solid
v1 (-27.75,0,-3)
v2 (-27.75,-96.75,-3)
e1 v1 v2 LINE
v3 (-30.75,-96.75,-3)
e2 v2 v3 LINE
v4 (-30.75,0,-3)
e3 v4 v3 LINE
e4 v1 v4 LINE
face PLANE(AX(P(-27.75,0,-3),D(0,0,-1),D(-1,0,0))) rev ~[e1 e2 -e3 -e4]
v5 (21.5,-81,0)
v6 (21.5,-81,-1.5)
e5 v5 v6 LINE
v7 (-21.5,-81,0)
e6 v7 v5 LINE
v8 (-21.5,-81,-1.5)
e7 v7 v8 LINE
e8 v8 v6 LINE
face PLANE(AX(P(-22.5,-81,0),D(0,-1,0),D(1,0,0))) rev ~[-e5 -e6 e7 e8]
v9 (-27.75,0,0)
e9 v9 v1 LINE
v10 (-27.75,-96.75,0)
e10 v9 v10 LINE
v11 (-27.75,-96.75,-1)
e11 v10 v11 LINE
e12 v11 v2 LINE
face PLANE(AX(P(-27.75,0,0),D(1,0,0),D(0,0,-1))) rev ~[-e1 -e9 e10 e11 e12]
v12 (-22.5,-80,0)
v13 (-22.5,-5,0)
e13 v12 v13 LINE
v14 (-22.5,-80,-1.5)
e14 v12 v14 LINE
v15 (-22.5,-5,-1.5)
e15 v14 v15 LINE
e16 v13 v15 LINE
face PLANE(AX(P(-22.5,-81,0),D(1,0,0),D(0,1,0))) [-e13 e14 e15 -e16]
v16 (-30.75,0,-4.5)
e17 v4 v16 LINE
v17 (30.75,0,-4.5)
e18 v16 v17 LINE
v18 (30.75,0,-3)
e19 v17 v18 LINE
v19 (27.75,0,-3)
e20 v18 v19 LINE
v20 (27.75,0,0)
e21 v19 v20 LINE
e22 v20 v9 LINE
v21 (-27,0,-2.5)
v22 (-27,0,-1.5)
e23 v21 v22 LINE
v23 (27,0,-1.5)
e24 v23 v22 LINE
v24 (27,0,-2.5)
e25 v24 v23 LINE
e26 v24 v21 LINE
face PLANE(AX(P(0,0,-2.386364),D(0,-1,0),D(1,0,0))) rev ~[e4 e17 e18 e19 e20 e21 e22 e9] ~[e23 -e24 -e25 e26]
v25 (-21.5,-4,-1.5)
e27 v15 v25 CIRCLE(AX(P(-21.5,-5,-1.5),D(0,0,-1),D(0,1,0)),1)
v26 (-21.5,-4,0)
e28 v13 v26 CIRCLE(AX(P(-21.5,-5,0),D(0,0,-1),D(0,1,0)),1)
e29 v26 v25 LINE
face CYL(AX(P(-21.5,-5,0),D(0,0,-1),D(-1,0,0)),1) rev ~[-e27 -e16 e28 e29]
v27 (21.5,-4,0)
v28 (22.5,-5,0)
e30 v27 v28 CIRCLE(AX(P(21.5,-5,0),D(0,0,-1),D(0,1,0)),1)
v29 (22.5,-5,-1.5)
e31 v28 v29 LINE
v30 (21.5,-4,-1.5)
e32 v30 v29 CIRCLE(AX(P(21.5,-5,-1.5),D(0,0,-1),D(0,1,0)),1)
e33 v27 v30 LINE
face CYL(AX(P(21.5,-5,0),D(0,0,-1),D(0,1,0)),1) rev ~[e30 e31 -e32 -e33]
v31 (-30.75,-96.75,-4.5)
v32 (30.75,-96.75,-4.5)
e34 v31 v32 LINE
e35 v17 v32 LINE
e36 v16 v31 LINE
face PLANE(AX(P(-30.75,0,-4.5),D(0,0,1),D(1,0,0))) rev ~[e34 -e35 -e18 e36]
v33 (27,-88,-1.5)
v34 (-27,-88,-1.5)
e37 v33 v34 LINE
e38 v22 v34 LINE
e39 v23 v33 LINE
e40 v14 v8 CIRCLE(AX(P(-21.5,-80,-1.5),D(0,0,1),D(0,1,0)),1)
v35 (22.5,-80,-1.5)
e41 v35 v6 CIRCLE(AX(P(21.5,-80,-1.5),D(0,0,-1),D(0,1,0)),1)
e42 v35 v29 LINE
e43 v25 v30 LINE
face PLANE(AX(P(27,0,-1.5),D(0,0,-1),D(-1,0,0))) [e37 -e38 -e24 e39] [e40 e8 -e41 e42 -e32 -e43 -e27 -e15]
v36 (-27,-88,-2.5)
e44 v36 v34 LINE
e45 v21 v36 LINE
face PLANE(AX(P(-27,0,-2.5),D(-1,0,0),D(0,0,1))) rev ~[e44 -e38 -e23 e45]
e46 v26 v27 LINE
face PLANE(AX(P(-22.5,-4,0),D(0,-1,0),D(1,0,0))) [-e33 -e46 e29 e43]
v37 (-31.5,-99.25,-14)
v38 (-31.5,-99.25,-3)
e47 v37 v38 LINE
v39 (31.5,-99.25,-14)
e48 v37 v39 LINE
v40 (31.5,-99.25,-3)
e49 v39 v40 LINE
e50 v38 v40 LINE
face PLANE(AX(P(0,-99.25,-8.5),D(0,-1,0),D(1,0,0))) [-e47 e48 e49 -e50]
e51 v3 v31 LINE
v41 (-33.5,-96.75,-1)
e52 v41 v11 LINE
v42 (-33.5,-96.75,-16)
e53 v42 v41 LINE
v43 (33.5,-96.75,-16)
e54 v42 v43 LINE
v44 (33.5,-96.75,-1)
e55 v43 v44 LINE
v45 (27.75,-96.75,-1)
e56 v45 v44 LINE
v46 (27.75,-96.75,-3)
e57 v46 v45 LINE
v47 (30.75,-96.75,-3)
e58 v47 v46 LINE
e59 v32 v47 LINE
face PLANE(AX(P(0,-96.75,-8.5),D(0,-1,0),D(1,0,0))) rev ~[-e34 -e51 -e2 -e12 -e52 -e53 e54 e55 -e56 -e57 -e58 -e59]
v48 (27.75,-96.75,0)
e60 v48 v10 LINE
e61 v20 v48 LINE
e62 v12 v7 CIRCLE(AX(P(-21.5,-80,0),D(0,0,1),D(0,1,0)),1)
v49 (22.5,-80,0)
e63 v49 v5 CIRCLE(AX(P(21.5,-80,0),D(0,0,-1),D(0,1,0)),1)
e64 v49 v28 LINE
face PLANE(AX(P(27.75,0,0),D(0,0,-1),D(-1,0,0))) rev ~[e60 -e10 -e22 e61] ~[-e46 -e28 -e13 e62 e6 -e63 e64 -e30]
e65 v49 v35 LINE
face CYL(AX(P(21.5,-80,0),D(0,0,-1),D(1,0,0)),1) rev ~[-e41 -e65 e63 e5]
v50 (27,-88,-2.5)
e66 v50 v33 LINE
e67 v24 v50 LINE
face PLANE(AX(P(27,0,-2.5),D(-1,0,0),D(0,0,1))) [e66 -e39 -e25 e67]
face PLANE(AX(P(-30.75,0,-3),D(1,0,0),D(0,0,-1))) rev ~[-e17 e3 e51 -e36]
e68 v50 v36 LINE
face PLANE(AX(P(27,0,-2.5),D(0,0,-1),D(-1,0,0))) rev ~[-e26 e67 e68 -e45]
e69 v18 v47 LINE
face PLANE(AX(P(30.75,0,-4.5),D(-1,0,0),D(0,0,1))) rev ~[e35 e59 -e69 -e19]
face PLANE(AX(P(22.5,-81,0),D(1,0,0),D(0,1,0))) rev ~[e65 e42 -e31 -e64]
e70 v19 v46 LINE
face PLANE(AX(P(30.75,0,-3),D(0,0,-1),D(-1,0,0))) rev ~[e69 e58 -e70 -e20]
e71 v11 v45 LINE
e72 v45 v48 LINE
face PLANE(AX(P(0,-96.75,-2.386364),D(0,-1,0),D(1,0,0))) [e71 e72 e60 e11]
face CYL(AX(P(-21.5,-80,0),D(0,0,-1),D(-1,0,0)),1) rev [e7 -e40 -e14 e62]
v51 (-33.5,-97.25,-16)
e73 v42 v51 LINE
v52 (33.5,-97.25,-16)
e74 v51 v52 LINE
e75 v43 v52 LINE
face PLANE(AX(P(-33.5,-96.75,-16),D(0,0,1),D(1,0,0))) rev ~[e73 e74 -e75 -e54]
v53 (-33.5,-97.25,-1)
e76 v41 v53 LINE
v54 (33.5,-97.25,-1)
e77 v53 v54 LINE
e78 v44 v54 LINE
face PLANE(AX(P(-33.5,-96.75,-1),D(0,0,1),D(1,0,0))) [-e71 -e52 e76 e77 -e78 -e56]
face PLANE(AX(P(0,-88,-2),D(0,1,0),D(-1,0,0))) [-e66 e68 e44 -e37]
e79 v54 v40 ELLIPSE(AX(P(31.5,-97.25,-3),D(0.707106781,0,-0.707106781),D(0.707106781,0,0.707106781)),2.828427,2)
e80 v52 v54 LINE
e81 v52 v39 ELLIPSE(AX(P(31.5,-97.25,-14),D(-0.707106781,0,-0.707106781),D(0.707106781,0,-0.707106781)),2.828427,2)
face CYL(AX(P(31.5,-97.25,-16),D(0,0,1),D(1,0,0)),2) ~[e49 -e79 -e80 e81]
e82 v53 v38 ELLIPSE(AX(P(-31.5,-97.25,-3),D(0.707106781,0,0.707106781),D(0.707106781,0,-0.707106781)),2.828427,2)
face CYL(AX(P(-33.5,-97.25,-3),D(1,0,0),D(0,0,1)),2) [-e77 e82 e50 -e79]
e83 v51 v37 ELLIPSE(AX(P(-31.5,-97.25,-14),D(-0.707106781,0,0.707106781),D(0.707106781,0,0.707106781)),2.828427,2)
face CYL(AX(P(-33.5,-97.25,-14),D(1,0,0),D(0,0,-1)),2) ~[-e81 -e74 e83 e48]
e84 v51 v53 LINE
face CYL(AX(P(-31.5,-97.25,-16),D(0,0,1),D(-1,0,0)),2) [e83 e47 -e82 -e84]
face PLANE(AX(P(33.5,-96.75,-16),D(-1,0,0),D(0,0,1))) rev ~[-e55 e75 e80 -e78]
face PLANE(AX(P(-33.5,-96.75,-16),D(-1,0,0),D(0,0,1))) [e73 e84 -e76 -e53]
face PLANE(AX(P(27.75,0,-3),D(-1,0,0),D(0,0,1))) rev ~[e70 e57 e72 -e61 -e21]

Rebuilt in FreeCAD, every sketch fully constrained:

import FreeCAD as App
import Part
import Sketcher
Q = App.Units.Quantity


def edges_at(feature, points):
    """Names of the edges that pass closest to the given points."""
    edges = feature.Shape.Edges
    near = lambda p: min(range(len(edges)), key=lambda i: edges[i].distToShape(Part.Vertex(*p))[0])
    return sorted({f"Edge{near(p) + 1}" for p in points})


def add_polygon(sketch, points):
    """Adds a closed chain of lines whose ends are joined by coincident constraints."""
    first, n = sketch.GeometryCount, len(points)
    for a, b in zip(points, points[1:] + points[:1]):
        sketch.addGeometry(Part.LineSegment(App.Vector(*a, 0), App.Vector(*b, 0)), False)
    for i in range(n):
        sketch.addConstraint(Sketcher.Constraint("Coincident", first + i, 2, first + (i + 1) % n, 1))

doc = App.newDocument("Part")
body = doc.addObject("PartDesign::Body", "Body")

sketch1 = doc.addObject("Sketcher::SketchObject", "Sketch")
body.addObject(sketch1)
sketch1.AttachmentSupport = (doc.XZ_Plane, [""])
sketch1.MapMode = "FlatFace"
add_polygon(sketch1, [(-27.8, 0), (-27.8, -3), (-30.8, -3), (-30.8, -4.5), (30.8, -4.5), (30.8, -3), (27.8, -3), (27.8, 0)])
sketch1.addConstraint([
    Sketcher.Constraint("Vertical", 0),
    Sketcher.Constraint("Horizontal", 1),
    Sketcher.Constraint("Vertical", 2),
    Sketcher.Constraint("Horizontal", 3),
    Sketcher.Constraint("Vertical", 4),
    Sketcher.Constraint("Horizontal", 5),
    Sketcher.Constraint("Vertical", 6),
    Sketcher.Constraint("Horizontal", 7),
    Sketcher.Constraint("Symmetric", 6, 2, 7, 2, -1, 1),
    Sketcher.Constraint("Symmetric", 1, 2, 4, 2, -2),
    Sketcher.Constraint("Equal", 5, 0),
    Sketcher.Constraint("DistanceX", 1, 2, 1, 1, Q("3 mm")),
    Sketcher.Constraint("DistanceX", 3, 1, 3, 2, Q("61.5 mm")),
    Sketcher.Constraint("DistanceY", 2, 2, 2, 1, Q("1.5 mm")),
])
pad1 = doc.addObject("PartDesign::Pad", "Pad")
body.addObject(pad1)
pad1.Profile = sketch1
pad1.Length = 96.75

sketch2 = doc.addObject("Sketcher::SketchObject", "Sketch001")
body.addObject(sketch2)
sketch2.AttachmentSupport = (doc.XZ_Plane, [""])
sketch2.MapMode = "FlatFace"
sketch2.AttachmentOffset = App.Placement(App.Vector(0, 0, 96.75), App.Rotation())
add_polygon(sketch2, [(-34, -1), (-34, -16), (34, -16), (34, -1)])
sketch2.addConstraint([
    Sketcher.Constraint("Vertical", 0),
    Sketcher.Constraint("Horizontal", 1),
    Sketcher.Constraint("Vertical", 2),
    Sketcher.Constraint("Horizontal", 3),
    Sketcher.Constraint("DistanceX", 1, 1, 1, 2, Q("67 mm")),
    Sketcher.Constraint("DistanceY", 0, 2, 0, 1, Q("15 mm")),
    Sketcher.Constraint("DistanceY", 0, 2, -1, 1, Q("16 mm")),
    Sketcher.Constraint("DistanceX", 0, 2, -1, 1, Q("33.5 mm")),
])
pad2 = doc.addObject("PartDesign::Pad", "Pad001")
body.addObject(pad2)
pad2.Profile = sketch2
pad2.Length = 2.5

sketch3 = doc.addObject("Sketcher::SketchObject", "Sketch002")
body.addObject(sketch3)
sketch3.AttachmentSupport = (doc.XZ_Plane, [""])
sketch3.MapMode = "FlatFace"
add_polygon(sketch3, [(27, -1.5), (27, -2.5), (-27, -2.5), (-27, -1.5)])
sketch3.addConstraint([
    Sketcher.Constraint("Vertical", 0),
    Sketcher.Constraint("Horizontal", 1),
    Sketcher.Constraint("Vertical", 2),
    Sketcher.Constraint("Horizontal", 3),
    Sketcher.Constraint("DistanceX", 1, 2, 1, 1, Q("54 mm")),
    Sketcher.Constraint("DistanceY", 0, 2, 0, 1, Q("1 mm")),
    Sketcher.Constraint("DistanceX", -1, 1, 0, 2, Q("27 mm")),
    Sketcher.Constraint("DistanceY", 0, 2, -1, 1, Q("2.5 mm")),
])
pocket1 = doc.addObject("PartDesign::Pocket", "Pocket")
body.addObject(pocket1)
pocket1.Profile = sketch3
pocket1.Length = 88
pocket1.Reversed = True

sketch4 = doc.addObject("Sketcher::SketchObject", "Sketch003")
body.addObject(sketch4)
sketch4.AttachmentSupport = (doc.XY_Plane, [""])
sketch4.MapMode = "FlatFace"
add_polygon(sketch4, [(-22, -4), (-22, -81), (22, -81), (22, -4)])
sketch4.addConstraint([
    Sketcher.Constraint("Vertical", 0),
    Sketcher.Constraint("Horizontal", 1),
    Sketcher.Constraint("Vertical", 2),
    Sketcher.Constraint("Horizontal", 3),
    Sketcher.Constraint("DistanceX", 1, 1, 1, 2, Q("45 mm")),
    Sketcher.Constraint("DistanceY", 0, 2, 0, 1, Q("77 mm")),
    Sketcher.Constraint("DistanceY", 0, 2, -1, 1, Q("81 mm")),
    Sketcher.Constraint("DistanceX", 0, 2, -1, 1, Q("22.5 mm")),
])
pocket2 = doc.addObject("PartDesign::Pocket", "Pocket001")
body.addObject(pocket2)
pocket2.Profile = sketch4
pocket2.Length = 1.5
doc.recompute()

fillet = doc.addObject("PartDesign::Fillet", "Fillet")
body.addObject(fillet)
fillet.Base = (pocket2, edges_at(pocket2, [
    (-22.5, -81, -0.75),
    (-22.5, -4, -0.75),
    (22.5, -4, -0.75),
    (22.5, -81, -0.75),
]))
fillet.Radius = 1
doc.recompute()

fillet2 = doc.addObject("PartDesign::Fillet", "Fillet001")
body.addObject(fillet2)
fillet2.Base = (fillet, edges_at(fillet, [
    (0, -99.25, -16),
    (0, -99.25, -1),
    (33.5, -99.25, -8.5),
    (-33.5, -99.25, -8.5),
]))
fillet2.Radius = 2

doc.recompute()
